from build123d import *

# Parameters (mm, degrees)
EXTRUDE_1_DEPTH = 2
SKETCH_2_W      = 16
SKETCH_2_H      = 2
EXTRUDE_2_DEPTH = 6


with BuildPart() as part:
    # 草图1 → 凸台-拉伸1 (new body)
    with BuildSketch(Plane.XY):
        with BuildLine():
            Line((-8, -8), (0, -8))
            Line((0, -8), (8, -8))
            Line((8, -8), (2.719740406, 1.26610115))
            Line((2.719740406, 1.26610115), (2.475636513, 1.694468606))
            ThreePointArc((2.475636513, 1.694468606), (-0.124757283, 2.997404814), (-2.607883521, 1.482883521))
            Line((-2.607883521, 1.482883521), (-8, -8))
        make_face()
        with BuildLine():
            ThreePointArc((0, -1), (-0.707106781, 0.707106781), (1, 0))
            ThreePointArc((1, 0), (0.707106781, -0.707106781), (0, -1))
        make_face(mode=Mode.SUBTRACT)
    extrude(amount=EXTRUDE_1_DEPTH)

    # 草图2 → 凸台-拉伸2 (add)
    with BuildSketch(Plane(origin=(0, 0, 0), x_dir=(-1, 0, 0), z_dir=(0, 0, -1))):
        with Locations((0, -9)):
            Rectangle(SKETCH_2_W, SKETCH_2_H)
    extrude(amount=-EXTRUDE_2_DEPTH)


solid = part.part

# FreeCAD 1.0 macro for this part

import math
import FreeCAD as App
import Part
import Sketcher
from FreeCAD import Vector
Q = App.Units.Quantity

doc = App.newDocument("Part")
body = doc.addObject("PartDesign::Body", "Body")

sketch1 = doc.addObject("Sketcher::SketchObject", "Sketch")
body.addObject(sketch1)
sketch1.AttachmentSupport = (doc.XY_Plane, [""])
sketch1.MapMode = "FlatFace"
sketch1.addGeometry(Part.LineSegment(Vector(-8, -8, 0), Vector(8, -8, 0)), False)
sketch1.addGeometry(Part.LineSegment(Vector(8, -8, 0), Vector(2.72, 1.27, 0)), False)
sketch1.addGeometry(Part.LineSegment(Vector(2.72, 1.27, 0), Vector(2.48, 1.69, 0)), False)
sketch1.addGeometry(Part.ArcOfCircle(Part.Circle(Vector(0, 0, 0), Vector(0, 0, 1), 3), math.radians(34), math.radians(150)), False)
sketch1.addGeometry(Part.LineSegment(Vector(-2.61, 1.48, 0), Vector(-8, -8, 0)), False)
sketch1.addGeometry(Part.ArcOfCircle(Part.Circle(Vector(0, 0, 0), Vector(0, 0, 1), 1), math.radians(-90), math.radians(0)), False)
sketch1.addGeometry(Part.ArcOfCircle(Part.Circle(Vector(0, 0, 0), Vector(0, 0, 1), 1), math.radians(0), math.radians(270)), False)
sketch1.addConstraint(Sketcher.Constraint("Coincident", 0, 2, 1, 1))
sketch1.addConstraint(Sketcher.Constraint("Coincident", 1, 2, 2, 1))
sketch1.addConstraint(Sketcher.Constraint("Coincident", 2, 2, 3, 1))
sketch1.addConstraint(Sketcher.Constraint("Tangent", 3, 2, 4, 1))
sketch1.addConstraint(Sketcher.Constraint("Coincident", 4, 2, 0, 1))
sketch1.addConstraint(Sketcher.Constraint("Tangent", 5, 1, 6, 2))
sketch1.addConstraint(Sketcher.Constraint("Coincident", 6, 1, 5, 2))
sketch1.addConstraint(Sketcher.Constraint("Horizontal", 0))
sketch1.addConstraint(Sketcher.Constraint("Coincident", 3, 3, -1, 1))
sketch1.addConstraint(Sketcher.Constraint("Coincident", 5, 3, -1, 1))
sketch1.addConstraint(Sketcher.Constraint("PointOnObject", 5, 1, -2))
sketch1.addConstraint(Sketcher.Constraint("PointOnObject", 6, 1, -1))
sketch1.addConstraint(Sketcher.Constraint("Parallel", 1, 2))
sketch1.addConstraint(Sketcher.Constraint("Radius", 3, Q("3 mm")))
sketch1.addConstraint(Sketcher.Constraint("Radius", 5, Q("1 mm")))
sketch1.addConstraint(Sketcher.Constraint("DistanceX", 0, 1, 0, 2, Q("16 mm")))
sketch1.addConstraint(Sketcher.Constraint("DistanceX", -1, 1, 0, 2, Q("8 mm")))
sketch1.addConstraint(Sketcher.Constraint("DistanceY", 0, 2, -1, 1, Q("8 mm")))
sketch1.addConstraint(Sketcher.Constraint("DistanceY", -1, 1, 1, 2, Q("1.266101 mm")))
sketch1.addConstraint(Sketcher.Constraint("Distance", 1, Q("10.664979 mm")))
pad1 = doc.addObject("PartDesign::Pad", "Pad")
body.addObject(pad1)
pad1.Profile = sketch1
pad1.Length = 2

sketch2 = doc.addObject("Sketcher::SketchObject", "Sketch001")
body.addObject(sketch2)
sketch2.AttachmentSupport = (doc.XY_Plane, [""])
sketch2.MapMode = "FlatFace"
sketch2.addGeometry(Part.LineSegment(Vector(8, -8, 0), Vector(8, -10, 0)), False)
sketch2.addGeometry(Part.LineSegment(Vector(8, -10, 0), Vector(-8, -10, 0)), False)
sketch2.addGeometry(Part.LineSegment(Vector(-8, -10, 0), Vector(-8, -8, 0)), False)
sketch2.addGeometry(Part.LineSegment(Vector(-8, -8, 0), Vector(8, -8, 0)), False)
sketch2.addConstraint(Sketcher.Constraint("Coincident", 0, 2, 1, 1))
sketch2.addConstraint(Sketcher.Constraint("Coincident", 1, 2, 2, 1))
sketch2.addConstraint(Sketcher.Constraint("Coincident", 2, 2, 3, 1))
sketch2.addConstraint(Sketcher.Constraint("Coincident", 3, 2, 0, 1))
sketch2.addConstraint(Sketcher.Constraint("Vertical", 0))
sketch2.addConstraint(Sketcher.Constraint("Horizontal", 1))
sketch2.addConstraint(Sketcher.Constraint("Vertical", 2))
sketch2.addConstraint(Sketcher.Constraint("Horizontal", 3))
sketch2.addConstraint(Sketcher.Constraint("DistanceX", 1, 2, 1, 1, Q("16 mm")))
sketch2.addConstraint(Sketcher.Constraint("DistanceY", 0, 2, 0, 1, Q("2 mm")))
sketch2.addConstraint(Sketcher.Constraint("DistanceX", -1, 1, 0, 2, Q("8 mm")))
sketch2.addConstraint(Sketcher.Constraint("DistanceY", 0, 2, -1, 1, Q("10 mm")))
pad2 = doc.addObject("PartDesign::Pad", "Pad001")
body.addObject(pad2)
pad2.Profile = sketch2
pad2.Length = 6

doc.recompute()
